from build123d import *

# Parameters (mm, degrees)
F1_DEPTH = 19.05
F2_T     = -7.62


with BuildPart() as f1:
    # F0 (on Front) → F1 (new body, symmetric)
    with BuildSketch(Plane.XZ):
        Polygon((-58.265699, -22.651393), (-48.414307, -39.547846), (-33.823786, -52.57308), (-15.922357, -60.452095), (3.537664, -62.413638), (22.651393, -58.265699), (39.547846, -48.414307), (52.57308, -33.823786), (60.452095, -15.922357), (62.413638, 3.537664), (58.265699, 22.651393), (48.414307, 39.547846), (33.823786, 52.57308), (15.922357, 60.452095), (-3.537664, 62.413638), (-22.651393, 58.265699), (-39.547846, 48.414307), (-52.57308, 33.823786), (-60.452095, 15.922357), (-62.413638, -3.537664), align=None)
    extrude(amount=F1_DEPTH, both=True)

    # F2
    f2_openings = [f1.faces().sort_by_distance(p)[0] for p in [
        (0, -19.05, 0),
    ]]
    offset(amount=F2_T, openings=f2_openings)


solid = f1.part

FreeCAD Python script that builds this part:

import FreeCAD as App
import Part
import Sketcher
from FreeCAD import Vector
Q = App.Units.Quantity


def faces_at(feature, points):
    """Names of the faces that lie closest to the given points."""
    faces = feature.Shape.Faces
    near = lambda p: min(range(len(faces)), key=lambda i: faces[i].distToShape(Part.Vertex(*p))[0])
    return sorted({f"Face{near(p) + 1}" for p in points})

doc = App.newDocument("Part")
body = doc.addObject("PartDesign::Body", "Body")

sketch1 = body.newObject("Sketcher::SketchObject", "Sketch")
sketch1.AttachmentSupport = (doc.getObject("XZ_Plane"), [""])
sketch1.MapMode = "FlatFace"
sketch1.addGeometry([
    Part.LineSegment(Vector(-58, -23, 0), Vector(-48, -40, 0)),
    Part.LineSegment(Vector(-48, -40, 0), Vector(-34, -53, 0)),
    Part.LineSegment(Vector(-34, -53, 0), Vector(-16, -60, 0)),
    Part.LineSegment(Vector(-16, -60, 0), Vector(4, -62, 0)),
    Part.LineSegment(Vector(4, -62, 0), Vector(23, -58, 0)),
    Part.LineSegment(Vector(23, -58, 0), Vector(40, -48, 0)),
    Part.LineSegment(Vector(40, -48, 0), Vector(53, -34, 0)),
    Part.LineSegment(Vector(53, -34, 0), Vector(60, -16, 0)),
    Part.LineSegment(Vector(60, -16, 0), Vector(62, 4, 0)),
    Part.LineSegment(Vector(62, 4, 0), Vector(58, 23, 0)),
    Part.LineSegment(Vector(58, 23, 0), Vector(48, 40, 0)),
    Part.LineSegment(Vector(48, 40, 0), Vector(34, 53, 0)),
    Part.LineSegment(Vector(34, 53, 0), Vector(16, 60, 0)),
    Part.LineSegment(Vector(16, 60, 0), Vector(-4, 62, 0)),
    Part.LineSegment(Vector(-4, 62, 0), Vector(-23, 58, 0)),
    Part.LineSegment(Vector(-23, 58, 0), Vector(-40, 48, 0)),
    Part.LineSegment(Vector(-40, 48, 0), Vector(-53, 34, 0)),
    Part.LineSegment(Vector(-53, 34, 0), Vector(-60, 16, 0)),
    Part.LineSegment(Vector(-60, 16, 0), Vector(-62, -4, 0)),
    Part.LineSegment(Vector(-62, -4, 0), Vector(-58, -23, 0)),
], False)
sketch1.addConstraint([
    Sketcher.Constraint("Coincident", 0, 2, 1, 1),
    Sketcher.Constraint("Coincident", 1, 2, 2, 1),
    Sketcher.Constraint("Coincident", 2, 2, 3, 1),
    Sketcher.Constraint("Coincident", 3, 2, 4, 1),
    Sketcher.Constraint("Coincident", 4, 2, 5, 1),
    Sketcher.Constraint("Coincident", 5, 2, 6, 1),
    Sketcher.Constraint("Coincident", 6, 2, 7, 1),
    Sketcher.Constraint("Coincident", 7, 2, 8, 1),
    Sketcher.Constraint("Coincident", 8, 2, 9, 1),
    Sketcher.Constraint("Coincident", 9, 2, 10, 1),
    Sketcher.Constraint("Coincident", 10, 2, 11, 1),
    Sketcher.Constraint("Coincident", 11, 2, 12, 1),
    Sketcher.Constraint("Coincident", 12, 2, 13, 1),
    Sketcher.Constraint("Coincident", 13, 2, 14, 1),
    Sketcher.Constraint("Coincident", 14, 2, 15, 1),
    Sketcher.Constraint("Coincident", 15, 2, 16, 1),
    Sketcher.Constraint("Coincident", 16, 2, 17, 1),
    Sketcher.Constraint("Coincident", 17, 2, 18, 1),
    Sketcher.Constraint("Coincident", 18, 2, 19, 1),
    Sketcher.Constraint("Coincident", 19, 2, 0, 1),
    Sketcher.Constraint("Symmetric", 0, 2, 10, 2, -1, 1),
    Sketcher.Constraint("Symmetric", 1, 2, 11, 2, -1, 1),
    Sketcher.Constraint("Symmetric", 2, 2, 12, 2, -1, 1),
    Sketcher.Constraint("Symmetric", 3, 2, 13, 2, -1, 1),
    Sketcher.Constraint("Symmetric", 4, 2, 14, 2, -1, 1),
    Sketcher.Constraint("Symmetric", 5, 2, 15, 2, -1, 1),
    Sketcher.Constraint("Symmetric", 6, 2, 16, 2, -1, 1),
    Sketcher.Constraint("Symmetric", 7, 2, 17, 2, -1, 1),
    Sketcher.Constraint("Symmetric", 8, 2, 18, 2, -1, 1),
    Sketcher.Constraint("Symmetric", 9, 2, 19, 2, -1, 1),
    Sketcher.Constraint("Perpendicular", 0, 5),
    Sketcher.Constraint("Perpendicular", 1, 6),
    Sketcher.Constraint("Perpendicular", 2, 7),
    Sketcher.Constraint("Perpendicular", 3, 8),
    Sketcher.Constraint("Perpendicular", 4, 9),
    Sketcher.Constraint("Equal", 0, 1),
    Sketcher.Constraint("Equal", 1, 2),
    Sketcher.Constraint("Equal", 2, 3),
    Sketcher.Constraint("Equal", 3, 4),
    Sketcher.Constraint("Equal", 4, 5),
    Sketcher.Constraint("Equal", 5, 6),
    Sketcher.Constraint("Equal", 6, 7),
    Sketcher.Constraint("Equal", 7, 8),
    Sketcher.Constraint("Equal", 8, 9),
    Sketcher.Constraint("DistanceY", 4, 2, -1, 1, 58.265699),
    Sketcher.Constraint("DistanceX", 0, 2, 4, 2, 71.0657),
    Sketcher.Constraint("DistanceY", 3, 2, 8, 2, 65.951302),
    Sketcher.Constraint("Distance", 0, 19.558631),
    Sketcher.Constraint("DistanceY", 1, 2, -1, 1, 52.57308),
    Sketcher.Constraint("DistanceX", 0, 2, 1, 2, 14.590521),
])
pad1 = body.newObject("PartDesign::Pad", "Pad")
pad1.Profile = sketch1
pad1.Length = Q("1.5 in")
pad1.Midplane = True
doc.recompute()

thickness = body.newObject("PartDesign::Thickness", "Thickness")
thickness.Base = (pad1, faces_at(pad1, [(0, -19.05, 0)]))
thickness.Value = Q("0.3 in")
thickness.Reversed = True
thickness.Join = "Arc"

doc.recompute()
